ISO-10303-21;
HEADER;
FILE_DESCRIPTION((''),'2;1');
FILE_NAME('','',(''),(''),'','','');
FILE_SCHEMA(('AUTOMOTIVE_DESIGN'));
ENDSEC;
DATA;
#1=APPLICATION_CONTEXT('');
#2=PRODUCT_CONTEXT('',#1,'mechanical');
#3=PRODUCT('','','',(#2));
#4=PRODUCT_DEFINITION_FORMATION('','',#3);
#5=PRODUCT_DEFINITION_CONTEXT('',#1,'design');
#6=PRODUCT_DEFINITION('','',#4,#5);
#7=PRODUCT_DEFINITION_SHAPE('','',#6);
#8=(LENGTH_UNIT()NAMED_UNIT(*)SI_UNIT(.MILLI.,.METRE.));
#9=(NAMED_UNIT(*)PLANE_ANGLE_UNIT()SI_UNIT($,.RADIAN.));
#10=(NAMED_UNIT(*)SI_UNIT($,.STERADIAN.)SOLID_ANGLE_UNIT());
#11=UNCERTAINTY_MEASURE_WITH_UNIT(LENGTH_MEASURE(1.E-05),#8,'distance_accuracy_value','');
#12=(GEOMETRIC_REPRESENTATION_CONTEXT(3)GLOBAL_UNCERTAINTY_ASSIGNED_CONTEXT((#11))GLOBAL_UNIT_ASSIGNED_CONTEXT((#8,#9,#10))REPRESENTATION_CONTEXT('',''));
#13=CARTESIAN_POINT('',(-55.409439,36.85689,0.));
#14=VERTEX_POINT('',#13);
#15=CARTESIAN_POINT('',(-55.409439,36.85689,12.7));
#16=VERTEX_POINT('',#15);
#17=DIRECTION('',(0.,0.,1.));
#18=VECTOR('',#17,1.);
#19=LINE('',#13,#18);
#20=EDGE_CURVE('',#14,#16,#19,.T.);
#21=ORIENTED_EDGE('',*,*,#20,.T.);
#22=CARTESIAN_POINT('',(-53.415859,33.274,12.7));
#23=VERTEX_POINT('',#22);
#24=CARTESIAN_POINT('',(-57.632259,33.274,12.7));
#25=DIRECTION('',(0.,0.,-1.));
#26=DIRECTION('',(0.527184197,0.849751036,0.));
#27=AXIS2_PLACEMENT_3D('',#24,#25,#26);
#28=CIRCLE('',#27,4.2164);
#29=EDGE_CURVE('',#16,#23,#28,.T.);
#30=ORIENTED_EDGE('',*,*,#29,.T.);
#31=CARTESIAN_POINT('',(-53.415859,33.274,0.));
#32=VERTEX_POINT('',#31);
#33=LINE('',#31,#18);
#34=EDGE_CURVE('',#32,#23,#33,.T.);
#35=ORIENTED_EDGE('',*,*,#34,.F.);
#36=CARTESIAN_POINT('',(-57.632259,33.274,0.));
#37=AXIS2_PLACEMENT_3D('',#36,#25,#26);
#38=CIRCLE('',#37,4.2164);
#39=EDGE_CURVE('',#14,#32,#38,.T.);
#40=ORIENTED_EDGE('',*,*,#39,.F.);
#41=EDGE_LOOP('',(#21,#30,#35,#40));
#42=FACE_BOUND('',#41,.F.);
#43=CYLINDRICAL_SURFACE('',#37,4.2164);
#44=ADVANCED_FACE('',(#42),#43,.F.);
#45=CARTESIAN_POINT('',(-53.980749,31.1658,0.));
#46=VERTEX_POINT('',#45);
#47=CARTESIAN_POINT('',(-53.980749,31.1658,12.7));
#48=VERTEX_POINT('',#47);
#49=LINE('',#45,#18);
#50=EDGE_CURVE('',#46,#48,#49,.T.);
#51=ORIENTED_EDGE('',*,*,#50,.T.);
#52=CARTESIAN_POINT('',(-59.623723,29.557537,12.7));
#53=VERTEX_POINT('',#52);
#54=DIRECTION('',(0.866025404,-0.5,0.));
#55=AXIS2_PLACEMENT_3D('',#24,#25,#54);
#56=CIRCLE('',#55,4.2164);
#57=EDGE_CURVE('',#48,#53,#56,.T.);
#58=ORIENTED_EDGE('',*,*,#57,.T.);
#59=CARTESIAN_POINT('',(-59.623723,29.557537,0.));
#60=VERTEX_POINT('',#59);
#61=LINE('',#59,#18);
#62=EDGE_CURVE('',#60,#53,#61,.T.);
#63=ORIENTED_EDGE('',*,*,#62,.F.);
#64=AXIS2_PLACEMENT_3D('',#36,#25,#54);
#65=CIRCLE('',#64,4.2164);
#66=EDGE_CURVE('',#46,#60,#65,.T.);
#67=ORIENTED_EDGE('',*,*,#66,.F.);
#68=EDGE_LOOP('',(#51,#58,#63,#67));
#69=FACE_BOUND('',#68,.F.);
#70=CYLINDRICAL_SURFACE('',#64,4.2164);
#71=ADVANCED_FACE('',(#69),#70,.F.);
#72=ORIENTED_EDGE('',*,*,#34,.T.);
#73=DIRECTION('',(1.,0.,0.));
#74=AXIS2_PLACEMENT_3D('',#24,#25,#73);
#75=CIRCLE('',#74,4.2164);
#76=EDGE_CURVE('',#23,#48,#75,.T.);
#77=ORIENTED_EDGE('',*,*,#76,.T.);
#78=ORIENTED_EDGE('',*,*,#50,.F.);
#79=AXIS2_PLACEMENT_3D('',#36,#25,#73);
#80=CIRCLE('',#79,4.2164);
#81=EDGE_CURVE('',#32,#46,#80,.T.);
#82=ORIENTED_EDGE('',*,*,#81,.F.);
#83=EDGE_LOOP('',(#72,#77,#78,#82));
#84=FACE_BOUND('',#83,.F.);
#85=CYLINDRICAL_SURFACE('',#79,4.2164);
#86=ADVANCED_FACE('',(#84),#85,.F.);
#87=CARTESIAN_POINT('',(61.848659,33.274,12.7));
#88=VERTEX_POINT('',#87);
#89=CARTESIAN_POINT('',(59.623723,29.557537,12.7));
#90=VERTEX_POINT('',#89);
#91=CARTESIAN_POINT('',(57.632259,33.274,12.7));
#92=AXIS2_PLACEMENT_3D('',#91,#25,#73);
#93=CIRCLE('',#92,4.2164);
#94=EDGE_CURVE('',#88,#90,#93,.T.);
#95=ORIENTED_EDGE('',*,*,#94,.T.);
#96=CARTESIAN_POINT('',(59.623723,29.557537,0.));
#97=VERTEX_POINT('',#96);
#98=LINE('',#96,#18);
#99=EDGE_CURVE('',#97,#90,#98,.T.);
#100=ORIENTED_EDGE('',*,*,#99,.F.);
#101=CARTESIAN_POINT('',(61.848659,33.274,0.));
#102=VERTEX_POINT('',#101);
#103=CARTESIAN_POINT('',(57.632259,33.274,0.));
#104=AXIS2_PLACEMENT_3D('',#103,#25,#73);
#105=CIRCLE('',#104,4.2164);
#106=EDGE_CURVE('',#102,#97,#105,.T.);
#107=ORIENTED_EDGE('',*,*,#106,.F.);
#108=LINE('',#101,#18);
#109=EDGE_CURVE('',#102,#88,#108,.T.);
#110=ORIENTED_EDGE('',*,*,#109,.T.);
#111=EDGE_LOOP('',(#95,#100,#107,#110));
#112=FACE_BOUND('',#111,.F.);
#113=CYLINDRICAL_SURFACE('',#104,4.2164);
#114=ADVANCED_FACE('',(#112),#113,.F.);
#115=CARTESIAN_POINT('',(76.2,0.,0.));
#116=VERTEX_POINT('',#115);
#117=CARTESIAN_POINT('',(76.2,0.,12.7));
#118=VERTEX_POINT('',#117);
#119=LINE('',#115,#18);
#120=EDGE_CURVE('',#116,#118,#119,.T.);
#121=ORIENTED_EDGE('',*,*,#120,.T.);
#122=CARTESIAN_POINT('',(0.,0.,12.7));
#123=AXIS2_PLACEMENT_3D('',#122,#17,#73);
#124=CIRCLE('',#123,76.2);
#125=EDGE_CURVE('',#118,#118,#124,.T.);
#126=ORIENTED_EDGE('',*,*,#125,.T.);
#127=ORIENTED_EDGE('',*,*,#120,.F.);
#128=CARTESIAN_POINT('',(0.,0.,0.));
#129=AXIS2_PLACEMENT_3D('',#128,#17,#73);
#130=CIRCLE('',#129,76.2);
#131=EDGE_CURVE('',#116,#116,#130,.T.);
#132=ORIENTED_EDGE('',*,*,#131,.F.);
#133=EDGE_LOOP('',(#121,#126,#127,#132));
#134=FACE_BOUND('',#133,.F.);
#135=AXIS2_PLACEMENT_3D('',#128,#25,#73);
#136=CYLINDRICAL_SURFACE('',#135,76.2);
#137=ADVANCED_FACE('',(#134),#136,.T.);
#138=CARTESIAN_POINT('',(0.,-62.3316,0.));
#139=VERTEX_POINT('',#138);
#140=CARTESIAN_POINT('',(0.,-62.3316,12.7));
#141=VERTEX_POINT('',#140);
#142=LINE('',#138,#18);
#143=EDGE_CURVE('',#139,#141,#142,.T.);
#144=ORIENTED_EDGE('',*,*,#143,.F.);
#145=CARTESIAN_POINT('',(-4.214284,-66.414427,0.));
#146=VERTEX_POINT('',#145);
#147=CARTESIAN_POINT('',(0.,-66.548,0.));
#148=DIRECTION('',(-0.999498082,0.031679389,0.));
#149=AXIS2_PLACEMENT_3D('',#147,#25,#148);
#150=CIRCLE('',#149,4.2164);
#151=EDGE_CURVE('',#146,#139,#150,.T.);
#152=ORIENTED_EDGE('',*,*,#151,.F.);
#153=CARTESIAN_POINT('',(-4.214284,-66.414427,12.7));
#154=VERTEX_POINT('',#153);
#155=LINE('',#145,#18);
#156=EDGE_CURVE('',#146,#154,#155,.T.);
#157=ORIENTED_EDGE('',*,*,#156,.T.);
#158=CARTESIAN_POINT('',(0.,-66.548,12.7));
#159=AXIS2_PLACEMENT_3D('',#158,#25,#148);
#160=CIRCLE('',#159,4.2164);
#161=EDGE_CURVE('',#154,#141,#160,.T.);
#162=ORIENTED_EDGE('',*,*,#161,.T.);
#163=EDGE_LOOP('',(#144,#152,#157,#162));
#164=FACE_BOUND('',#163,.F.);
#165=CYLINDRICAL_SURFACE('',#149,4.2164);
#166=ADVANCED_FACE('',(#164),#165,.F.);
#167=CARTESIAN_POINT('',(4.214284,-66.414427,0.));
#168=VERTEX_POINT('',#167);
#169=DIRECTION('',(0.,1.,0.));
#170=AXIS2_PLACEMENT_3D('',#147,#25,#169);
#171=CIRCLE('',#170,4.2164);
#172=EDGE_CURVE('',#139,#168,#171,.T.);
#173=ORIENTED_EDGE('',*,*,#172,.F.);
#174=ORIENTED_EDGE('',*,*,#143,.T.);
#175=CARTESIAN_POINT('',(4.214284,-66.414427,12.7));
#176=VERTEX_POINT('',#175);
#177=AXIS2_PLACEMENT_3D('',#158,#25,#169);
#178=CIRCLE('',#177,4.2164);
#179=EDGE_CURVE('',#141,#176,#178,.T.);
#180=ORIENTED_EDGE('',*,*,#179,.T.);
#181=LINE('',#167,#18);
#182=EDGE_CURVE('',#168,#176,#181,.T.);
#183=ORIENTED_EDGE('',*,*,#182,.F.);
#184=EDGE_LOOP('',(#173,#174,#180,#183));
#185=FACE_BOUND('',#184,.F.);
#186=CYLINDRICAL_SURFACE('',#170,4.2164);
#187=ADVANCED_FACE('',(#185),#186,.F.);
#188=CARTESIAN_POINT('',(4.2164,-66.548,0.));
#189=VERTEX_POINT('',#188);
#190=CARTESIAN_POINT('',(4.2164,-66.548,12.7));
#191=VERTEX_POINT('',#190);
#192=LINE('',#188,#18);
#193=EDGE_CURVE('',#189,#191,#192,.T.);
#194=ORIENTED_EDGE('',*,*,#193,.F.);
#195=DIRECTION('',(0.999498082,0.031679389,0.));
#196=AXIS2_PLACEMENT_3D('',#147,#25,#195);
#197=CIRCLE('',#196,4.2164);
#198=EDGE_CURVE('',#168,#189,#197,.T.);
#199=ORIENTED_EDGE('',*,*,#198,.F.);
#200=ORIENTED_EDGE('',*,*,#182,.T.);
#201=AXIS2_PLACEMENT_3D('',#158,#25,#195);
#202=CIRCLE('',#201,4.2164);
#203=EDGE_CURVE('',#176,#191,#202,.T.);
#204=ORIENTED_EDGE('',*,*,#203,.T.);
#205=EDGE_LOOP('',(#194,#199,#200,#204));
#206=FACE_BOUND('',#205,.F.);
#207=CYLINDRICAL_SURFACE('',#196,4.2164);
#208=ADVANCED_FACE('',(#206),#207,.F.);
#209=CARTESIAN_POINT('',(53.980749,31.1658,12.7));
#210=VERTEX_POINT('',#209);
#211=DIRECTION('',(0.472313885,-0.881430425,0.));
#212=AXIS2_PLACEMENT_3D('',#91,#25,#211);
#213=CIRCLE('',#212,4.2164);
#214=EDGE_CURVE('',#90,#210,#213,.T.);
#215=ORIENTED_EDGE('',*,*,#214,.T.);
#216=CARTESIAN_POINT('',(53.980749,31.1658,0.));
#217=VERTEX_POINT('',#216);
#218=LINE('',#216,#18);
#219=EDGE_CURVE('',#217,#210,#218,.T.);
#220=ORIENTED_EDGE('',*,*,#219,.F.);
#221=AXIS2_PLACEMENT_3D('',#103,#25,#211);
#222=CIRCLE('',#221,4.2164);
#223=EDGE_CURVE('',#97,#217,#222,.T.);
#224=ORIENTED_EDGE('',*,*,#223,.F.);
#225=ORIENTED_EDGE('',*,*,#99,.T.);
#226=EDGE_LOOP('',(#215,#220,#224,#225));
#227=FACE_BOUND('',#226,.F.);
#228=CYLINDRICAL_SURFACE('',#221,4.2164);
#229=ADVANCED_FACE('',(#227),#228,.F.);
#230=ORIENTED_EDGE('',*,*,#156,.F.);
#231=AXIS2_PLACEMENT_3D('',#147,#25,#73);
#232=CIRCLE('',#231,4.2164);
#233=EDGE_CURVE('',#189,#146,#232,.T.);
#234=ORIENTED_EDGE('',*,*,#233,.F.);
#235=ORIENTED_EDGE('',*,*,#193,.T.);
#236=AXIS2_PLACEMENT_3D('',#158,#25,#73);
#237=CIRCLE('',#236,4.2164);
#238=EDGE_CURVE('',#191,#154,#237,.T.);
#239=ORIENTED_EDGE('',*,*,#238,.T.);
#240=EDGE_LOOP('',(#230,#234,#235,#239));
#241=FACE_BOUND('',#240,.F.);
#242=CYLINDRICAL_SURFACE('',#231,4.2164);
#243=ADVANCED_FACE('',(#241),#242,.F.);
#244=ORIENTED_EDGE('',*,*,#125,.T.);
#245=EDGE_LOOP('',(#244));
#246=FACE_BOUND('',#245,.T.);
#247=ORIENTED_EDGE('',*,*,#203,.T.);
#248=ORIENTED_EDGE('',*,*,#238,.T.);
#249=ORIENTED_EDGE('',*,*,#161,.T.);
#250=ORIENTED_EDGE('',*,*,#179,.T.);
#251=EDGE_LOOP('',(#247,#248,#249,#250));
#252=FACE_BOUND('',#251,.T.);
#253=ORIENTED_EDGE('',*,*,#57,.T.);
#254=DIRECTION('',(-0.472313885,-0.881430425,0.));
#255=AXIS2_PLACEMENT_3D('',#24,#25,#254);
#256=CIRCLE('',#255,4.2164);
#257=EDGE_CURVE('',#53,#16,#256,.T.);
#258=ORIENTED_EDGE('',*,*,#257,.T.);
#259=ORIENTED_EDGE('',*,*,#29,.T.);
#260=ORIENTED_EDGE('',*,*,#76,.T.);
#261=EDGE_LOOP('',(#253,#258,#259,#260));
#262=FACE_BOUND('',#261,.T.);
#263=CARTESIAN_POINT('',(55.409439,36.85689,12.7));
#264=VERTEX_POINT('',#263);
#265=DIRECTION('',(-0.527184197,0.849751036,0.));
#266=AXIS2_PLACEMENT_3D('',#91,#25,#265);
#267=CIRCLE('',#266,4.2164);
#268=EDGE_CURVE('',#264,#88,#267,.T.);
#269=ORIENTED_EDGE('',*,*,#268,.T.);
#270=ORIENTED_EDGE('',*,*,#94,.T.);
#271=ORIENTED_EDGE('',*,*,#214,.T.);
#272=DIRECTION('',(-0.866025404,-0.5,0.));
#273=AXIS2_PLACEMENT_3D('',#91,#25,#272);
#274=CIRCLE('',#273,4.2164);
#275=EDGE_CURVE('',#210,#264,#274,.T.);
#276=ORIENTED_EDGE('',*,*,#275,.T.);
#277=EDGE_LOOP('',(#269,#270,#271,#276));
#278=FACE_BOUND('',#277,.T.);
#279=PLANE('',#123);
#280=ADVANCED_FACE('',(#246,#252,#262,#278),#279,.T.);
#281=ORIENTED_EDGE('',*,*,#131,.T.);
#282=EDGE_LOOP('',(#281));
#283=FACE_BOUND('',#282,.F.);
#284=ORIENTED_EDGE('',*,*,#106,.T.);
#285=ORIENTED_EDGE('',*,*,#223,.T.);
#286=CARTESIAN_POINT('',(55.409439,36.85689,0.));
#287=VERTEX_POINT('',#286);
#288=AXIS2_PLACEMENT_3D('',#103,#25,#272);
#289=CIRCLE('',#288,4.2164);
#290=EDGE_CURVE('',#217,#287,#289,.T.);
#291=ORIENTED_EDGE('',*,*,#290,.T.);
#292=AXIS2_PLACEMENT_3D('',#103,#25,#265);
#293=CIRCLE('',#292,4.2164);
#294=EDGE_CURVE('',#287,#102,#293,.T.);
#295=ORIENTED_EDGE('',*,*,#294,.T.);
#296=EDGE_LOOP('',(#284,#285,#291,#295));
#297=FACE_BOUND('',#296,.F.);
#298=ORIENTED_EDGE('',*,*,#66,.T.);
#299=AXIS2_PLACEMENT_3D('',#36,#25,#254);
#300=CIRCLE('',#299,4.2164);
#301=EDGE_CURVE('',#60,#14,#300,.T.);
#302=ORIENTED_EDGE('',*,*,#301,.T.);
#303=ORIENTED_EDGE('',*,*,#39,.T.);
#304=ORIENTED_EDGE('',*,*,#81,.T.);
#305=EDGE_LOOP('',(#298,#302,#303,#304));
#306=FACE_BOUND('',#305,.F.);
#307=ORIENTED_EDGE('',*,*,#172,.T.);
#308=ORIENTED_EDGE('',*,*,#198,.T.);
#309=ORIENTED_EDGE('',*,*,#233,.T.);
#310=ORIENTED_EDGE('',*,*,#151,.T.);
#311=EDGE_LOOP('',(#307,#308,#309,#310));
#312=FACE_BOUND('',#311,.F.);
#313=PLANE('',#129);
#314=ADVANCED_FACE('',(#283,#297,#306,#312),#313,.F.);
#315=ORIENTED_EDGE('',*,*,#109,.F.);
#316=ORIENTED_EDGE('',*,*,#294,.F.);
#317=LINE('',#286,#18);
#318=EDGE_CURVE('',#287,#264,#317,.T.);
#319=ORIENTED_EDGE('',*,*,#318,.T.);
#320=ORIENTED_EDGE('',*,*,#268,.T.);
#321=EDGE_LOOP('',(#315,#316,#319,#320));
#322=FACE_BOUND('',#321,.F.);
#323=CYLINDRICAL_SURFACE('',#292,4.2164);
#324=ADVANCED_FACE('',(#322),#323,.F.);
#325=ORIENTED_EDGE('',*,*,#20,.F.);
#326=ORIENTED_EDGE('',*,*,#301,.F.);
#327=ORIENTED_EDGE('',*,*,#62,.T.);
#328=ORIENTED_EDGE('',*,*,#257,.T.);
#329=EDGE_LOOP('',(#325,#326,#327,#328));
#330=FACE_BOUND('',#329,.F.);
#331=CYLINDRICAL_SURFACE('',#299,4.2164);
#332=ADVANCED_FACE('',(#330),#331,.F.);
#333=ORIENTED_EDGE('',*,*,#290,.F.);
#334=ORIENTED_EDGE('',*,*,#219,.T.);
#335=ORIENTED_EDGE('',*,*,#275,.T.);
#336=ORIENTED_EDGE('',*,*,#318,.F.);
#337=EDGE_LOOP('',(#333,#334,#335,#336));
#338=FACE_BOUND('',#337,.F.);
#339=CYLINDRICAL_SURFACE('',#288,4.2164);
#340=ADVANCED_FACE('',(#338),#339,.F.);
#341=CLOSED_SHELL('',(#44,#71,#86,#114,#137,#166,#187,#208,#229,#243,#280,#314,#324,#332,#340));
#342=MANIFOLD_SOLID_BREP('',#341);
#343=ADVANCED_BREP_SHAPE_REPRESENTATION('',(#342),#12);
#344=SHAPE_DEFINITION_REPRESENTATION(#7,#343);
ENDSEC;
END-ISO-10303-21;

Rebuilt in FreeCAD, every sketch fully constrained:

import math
import FreeCAD as App
import Part
import Sketcher

V = App.Vector
Q = App.Units.Quantity

doc = App.newDocument("Part")
params = doc.addObject("Spreadsheet::Sheet", "Params")
for row, (alias, value) in enumerate([
    ("sketch1_diameter", "6 in"),
    ("sketch1_radius", "0.166 in"),
    ("pad1_length", "0.5 in"),
], start=1):
    params.set(f"A{row}", alias)
    params.set(f"B{row}", "=" + value)
    params.setAlias(f"B{row}", alias)

body = doc.addObject("PartDesign::Body", "Body")

# Sketch on XY plane
sketch1 = body.newObject("Sketcher::SketchObject", "Sketch")
sketch1.AttachmentSupport = (doc.getObject("XY_Plane"), [""])
sketch1.MapMode = "FlatFace"
sketch1.addGeometry([
    Part.Circle(V(0, 0, 0), V(0, 0, 1), 76.2),  # 0
    Part.ArcOfCircle(Part.Circle(V(57.63, 33.27, 0), V(0, 0, 1), 4.22), math.radians(-62), math.radians(0)),  # 1
    Part.ArcOfCircle(Part.Circle(V(57.63, 33.27, 0), V(0, 0, 1), 4.22), math.radians(-150), math.radians(-62)),  # 2
    Part.ArcOfCircle(Part.Circle(V(57.63, 33.27, 0), V(0, 0, 1), 4.22), math.radians(122), math.radians(210)),  # 3
    Part.ArcOfCircle(Part.Circle(V(57.63, 33.27, 0), V(0, 0, 1), 4.22), math.radians(0), math.radians(122)),  # 4
    Part.ArcOfCircle(Part.Circle(V(0, -66.55, 0), V(0, 0, 1), 4.22), math.radians(0), math.radians(1.82)),  # 5
    Part.ArcOfCircle(Part.Circle(V(0, -66.55, 0), V(0, 0, 1), 4.22), math.radians(178), math.radians(360)),  # 6
    Part.ArcOfCircle(Part.Circle(V(0, -66.55, 0), V(0, 0, 1), 4.22), math.radians(90), math.radians(178)),  # 7
    Part.ArcOfCircle(Part.Circle(V(0, -66.55, 0), V(0, 0, 1), 4.22), math.radians(2), math.radians(90)),  # 8
    Part.ArcOfCircle(Part.Circle(V(-57.63, 33.27, 0), V(0, 0, 1), 4.22), math.radians(-118), math.radians(-30)),  # 9
    Part.ArcOfCircle(Part.Circle(V(-57.63, 33.27, 0), V(0, 0, 1), 4.22), math.radians(58), math.radians(242)),  # 10
    Part.ArcOfCircle(Part.Circle(V(-57.63, 33.27, 0), V(0, 0, 1), 4.22), math.radians(0), math.radians(58)),  # 11
    Part.ArcOfCircle(Part.Circle(V(-57.63, 33.27, 0), V(0, 0, 1), 4.22), math.radians(-30), math.radians(0)),  # 12
], False)
sketch1.addConstraint([
    Sketcher.Constraint("Tangent", 1, 1, 2, 2),
    Sketcher.Constraint("Tangent", 2, 1, 3, 2),
    Sketcher.Constraint("Tangent", 3, 1, 4, 2),
    Sketcher.Constraint("Tangent", 4, 1, 1, 2),
    Sketcher.Constraint("Tangent", 5, 1, 6, 2),
    Sketcher.Constraint("Tangent", 6, 1, 7, 2),
    Sketcher.Constraint("Tangent", 7, 1, 8, 2),
    Sketcher.Constraint("Tangent", 8, 1, 5, 2),
    Sketcher.Constraint("Tangent", 9, 1, 10, 2),
    Sketcher.Constraint("Tangent", 10, 1, 11, 2),
    Sketcher.Constraint("Tangent", 11, 1, 12, 2),
    Sketcher.Constraint("Tangent", 12, 1, 9, 2),
    Sketcher.Constraint("Coincident", 0, 3, -1, 1),
    Sketcher.Constraint("Equal", 1, 2),
    Sketcher.Constraint("Equal", 4, 5),
    Sketcher.Constraint("Equal", 5, 6),
    Sketcher.Constraint("Equal", 8, 9),
    Sketcher.Constraint("Equal", 9, 10),
    Sketcher.Constraint("Symmetric", 1, 3, 9, 3, -2),
    Sketcher.Constraint("Symmetric", 6, 1, 8, 1, -2),
    Sketcher.Constraint("PointOnObject", 7, 1, -2),
    Sketcher.Constraint("Horizontal", 12, 3, 4, 1),
    Sketcher.Constraint("Horizontal", 8, 3, 5, 1),
    Sketcher.Constraint("Horizontal", 1, 1, 9, 1),
    Sketcher.Constraint("Horizontal", 3, 1, 10, 1),
    Sketcher.Constraint("Horizontal", 4, 1, 11, 1),
    Sketcher.Constraint("Horizontal", 2, 1, 12, 1),
    Sketcher.Constraint("Diameter", 0, Q("6 in")),
    Sketcher.Constraint("Radius", 1, Q("0.166 in")),
    Sketcher.Constraint("DistanceY", -1, 1, 1, 3, Q("1.31 in")),
    Sketcher.Constraint("DistanceY", 5, 3, -1, 1, Q("2.62 in")),
    Sketcher.Constraint("DistanceY", -1, 1, 2, 1, Q("1.227 in")),
    Sketcher.Constraint("DistanceX", -1, 1, 1, 3, Q("57.632259 mm")),
    Sketcher.Constraint("DistanceX", -1, 1, 3, 1, Q("55.409439 mm")),
    Sketcher.Constraint("DistanceX", -1, 1, 1, 1, Q("59.623723 mm")),
    Sketcher.Constraint("DistanceX", 6, 1, -1, 1, Q("4.214284 mm")),
])
sketch1.setExpression("Constraints[27]", "Params.sketch1_diameter")
sketch1.setExpression("Constraints[28]", "Params.sketch1_radius")
pad1 = body.newObject("PartDesign::Pad", "Pad")
pad1.Profile = sketch1
pad1.setExpression("Length", "Params.pad1_length")

doc.recompute()
